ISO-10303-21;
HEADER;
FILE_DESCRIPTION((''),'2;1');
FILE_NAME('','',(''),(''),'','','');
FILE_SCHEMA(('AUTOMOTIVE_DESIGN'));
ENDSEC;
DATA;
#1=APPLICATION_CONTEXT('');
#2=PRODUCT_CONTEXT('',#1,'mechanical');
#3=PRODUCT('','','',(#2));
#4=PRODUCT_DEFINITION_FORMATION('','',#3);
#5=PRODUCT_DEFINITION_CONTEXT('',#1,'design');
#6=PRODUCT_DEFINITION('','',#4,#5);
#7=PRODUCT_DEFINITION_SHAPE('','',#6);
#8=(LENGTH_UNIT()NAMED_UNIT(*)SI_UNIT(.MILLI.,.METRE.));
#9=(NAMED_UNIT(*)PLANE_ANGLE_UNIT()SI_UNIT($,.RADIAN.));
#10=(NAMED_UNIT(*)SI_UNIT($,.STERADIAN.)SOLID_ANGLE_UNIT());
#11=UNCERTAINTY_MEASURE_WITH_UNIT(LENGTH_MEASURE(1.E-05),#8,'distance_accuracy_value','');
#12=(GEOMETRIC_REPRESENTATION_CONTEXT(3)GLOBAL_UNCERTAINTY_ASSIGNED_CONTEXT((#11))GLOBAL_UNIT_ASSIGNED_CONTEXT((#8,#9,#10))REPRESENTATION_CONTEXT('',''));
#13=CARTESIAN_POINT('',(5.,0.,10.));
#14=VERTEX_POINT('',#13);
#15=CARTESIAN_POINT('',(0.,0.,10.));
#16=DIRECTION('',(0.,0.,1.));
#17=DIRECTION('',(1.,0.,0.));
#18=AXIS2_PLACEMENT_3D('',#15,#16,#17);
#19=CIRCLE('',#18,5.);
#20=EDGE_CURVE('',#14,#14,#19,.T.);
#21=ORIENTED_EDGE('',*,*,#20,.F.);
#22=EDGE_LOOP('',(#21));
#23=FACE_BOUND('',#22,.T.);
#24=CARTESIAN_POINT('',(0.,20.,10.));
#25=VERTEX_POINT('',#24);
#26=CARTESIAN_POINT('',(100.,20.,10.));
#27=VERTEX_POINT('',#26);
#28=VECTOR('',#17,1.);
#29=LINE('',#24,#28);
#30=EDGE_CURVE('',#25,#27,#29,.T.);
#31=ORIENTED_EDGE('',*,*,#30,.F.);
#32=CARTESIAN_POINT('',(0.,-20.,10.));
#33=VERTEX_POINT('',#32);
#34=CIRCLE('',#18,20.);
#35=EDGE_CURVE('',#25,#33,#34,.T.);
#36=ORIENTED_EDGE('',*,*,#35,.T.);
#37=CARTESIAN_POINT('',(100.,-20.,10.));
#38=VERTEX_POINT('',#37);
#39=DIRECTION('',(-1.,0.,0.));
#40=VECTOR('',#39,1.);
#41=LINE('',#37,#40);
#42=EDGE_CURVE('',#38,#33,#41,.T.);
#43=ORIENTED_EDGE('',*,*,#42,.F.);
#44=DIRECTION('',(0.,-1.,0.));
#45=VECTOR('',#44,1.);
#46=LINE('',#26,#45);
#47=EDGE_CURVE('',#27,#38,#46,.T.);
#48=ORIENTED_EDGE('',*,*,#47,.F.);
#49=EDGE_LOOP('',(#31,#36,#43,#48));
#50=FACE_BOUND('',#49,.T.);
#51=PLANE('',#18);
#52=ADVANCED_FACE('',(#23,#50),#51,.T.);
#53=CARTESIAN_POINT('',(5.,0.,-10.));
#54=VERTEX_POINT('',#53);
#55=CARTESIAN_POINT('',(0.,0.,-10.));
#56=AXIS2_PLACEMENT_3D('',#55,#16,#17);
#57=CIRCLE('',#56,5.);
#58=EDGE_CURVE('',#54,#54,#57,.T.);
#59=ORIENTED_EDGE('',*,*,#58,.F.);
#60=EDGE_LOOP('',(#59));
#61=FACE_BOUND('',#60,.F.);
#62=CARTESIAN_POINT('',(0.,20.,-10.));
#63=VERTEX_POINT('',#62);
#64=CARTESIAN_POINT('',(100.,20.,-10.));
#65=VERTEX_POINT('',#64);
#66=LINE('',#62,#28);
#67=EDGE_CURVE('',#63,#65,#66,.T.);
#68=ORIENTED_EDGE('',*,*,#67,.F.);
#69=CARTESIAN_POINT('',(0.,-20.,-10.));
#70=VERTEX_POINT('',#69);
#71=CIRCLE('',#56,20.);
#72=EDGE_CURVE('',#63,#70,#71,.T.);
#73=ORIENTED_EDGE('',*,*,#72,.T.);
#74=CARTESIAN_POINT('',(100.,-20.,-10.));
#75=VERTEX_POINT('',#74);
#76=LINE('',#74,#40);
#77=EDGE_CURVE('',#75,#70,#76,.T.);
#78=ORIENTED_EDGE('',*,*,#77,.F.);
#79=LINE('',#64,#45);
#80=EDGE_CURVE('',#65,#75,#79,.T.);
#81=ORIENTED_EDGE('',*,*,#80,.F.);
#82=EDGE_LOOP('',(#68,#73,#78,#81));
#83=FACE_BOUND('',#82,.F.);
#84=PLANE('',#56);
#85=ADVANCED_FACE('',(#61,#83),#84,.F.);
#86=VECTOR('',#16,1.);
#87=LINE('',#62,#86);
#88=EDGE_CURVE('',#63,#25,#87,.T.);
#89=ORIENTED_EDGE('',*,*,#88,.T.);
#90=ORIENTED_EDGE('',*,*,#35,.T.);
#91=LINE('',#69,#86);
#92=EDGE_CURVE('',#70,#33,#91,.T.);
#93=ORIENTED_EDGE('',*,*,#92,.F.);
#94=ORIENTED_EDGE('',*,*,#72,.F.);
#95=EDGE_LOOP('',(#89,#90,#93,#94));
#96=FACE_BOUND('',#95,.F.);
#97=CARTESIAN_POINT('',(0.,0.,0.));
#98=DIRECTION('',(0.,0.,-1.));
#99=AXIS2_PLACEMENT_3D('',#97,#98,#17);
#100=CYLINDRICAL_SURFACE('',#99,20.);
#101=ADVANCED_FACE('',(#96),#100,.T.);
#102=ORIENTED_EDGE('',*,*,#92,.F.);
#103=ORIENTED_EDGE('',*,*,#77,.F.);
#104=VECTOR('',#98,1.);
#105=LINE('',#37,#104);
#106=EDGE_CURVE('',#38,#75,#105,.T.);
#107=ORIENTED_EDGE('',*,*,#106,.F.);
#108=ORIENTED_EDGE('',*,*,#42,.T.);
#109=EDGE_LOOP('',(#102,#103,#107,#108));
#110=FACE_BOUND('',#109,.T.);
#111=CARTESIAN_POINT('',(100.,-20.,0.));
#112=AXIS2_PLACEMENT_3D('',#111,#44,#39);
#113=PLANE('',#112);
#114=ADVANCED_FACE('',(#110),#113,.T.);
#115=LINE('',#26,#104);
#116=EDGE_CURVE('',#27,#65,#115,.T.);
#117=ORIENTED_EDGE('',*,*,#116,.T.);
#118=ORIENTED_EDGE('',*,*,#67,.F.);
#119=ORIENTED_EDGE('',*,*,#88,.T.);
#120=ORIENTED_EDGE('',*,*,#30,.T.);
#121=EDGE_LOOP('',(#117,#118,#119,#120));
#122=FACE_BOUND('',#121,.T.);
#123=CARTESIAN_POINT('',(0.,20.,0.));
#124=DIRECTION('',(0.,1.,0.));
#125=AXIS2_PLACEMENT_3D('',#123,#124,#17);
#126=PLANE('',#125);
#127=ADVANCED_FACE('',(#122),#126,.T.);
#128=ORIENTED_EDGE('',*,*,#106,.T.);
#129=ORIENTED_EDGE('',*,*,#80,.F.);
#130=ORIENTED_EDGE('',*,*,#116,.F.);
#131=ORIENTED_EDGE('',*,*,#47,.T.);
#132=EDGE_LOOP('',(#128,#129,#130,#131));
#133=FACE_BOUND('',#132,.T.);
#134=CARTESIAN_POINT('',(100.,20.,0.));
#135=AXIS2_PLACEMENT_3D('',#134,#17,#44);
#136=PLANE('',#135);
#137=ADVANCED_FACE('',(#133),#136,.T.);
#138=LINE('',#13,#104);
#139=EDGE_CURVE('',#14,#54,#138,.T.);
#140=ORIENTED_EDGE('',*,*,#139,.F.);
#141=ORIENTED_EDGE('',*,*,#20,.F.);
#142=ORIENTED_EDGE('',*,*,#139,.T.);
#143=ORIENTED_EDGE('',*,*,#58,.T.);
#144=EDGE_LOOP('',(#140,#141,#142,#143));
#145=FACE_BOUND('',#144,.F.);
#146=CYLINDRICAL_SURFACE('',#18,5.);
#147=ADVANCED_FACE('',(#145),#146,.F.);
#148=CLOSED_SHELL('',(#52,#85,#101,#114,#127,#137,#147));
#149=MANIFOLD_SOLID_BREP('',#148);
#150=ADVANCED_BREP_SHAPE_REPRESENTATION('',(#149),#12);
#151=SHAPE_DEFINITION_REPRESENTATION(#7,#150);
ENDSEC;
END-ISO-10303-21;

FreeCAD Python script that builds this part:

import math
import FreeCAD as App
import Part
import Sketcher
Q = App.Units.Quantity

doc = App.newDocument("Part")
params = doc.addObject("Spreadsheet::Sheet", "Params")
for row, (alias, value) in enumerate([
    ("sketch1_radius", "20 mm"),
    ("sketch1_width", "100 mm"),
    ("pad1_length", "20 mm"),
    ("sketch2_diameter", "10 mm"),
], start=1):
    params.set(f"A{row}", alias)
    params.set(f"B{row}", "=" + value)
    params.setAlias(f"B{row}", alias)

body = doc.addObject("PartDesign::Body", "Body")

sketch1 = body.newObject("Sketcher::SketchObject", "Sketch")
sketch1.AttachmentSupport = (doc.getObject("XY_Plane"), [""])
sketch1.MapMode = "FlatFace"
sketch1.addGeometry(Part.LineSegment(App.Vector(100, 20, 0), App.Vector(0, 20, 0)), False)
sketch1.addGeometry(Part.ArcOfCircle(Part.Circle(App.Vector(0, 0, 0), App.Vector(0, 0, 1), 20), math.radians(90), math.radians(270)), False)
sketch1.addGeometry(Part.LineSegment(App.Vector(0, -20, 0), App.Vector(100, -20, 0)), False)
sketch1.addGeometry(Part.LineSegment(App.Vector(100, -20, 0), App.Vector(100, 20, 0)), False)
sketch1.addConstraint(Sketcher.Constraint("Tangent", 0, 2, 1, 1))
sketch1.addConstraint(Sketcher.Constraint("Tangent", 1, 2, 2, 1))
sketch1.addConstraint(Sketcher.Constraint("Coincident", 2, 2, 3, 1))
sketch1.addConstraint(Sketcher.Constraint("Coincident", 3, 2, 0, 1))
sketch1.addConstraint(Sketcher.Constraint("Horizontal", 0))
sketch1.addConstraint(Sketcher.Constraint("Horizontal", 2))
sketch1.addConstraint(Sketcher.Constraint("Vertical", 3))
sketch1.addConstraint(Sketcher.Constraint("Coincident", 1, 3, -1, 1))
sketch1.addConstraint(Sketcher.Constraint("Radius", 1, Q("20 mm")))
sketch1.addConstraint(Sketcher.Constraint("DistanceX", 0, 2, 0, 1, Q("100 mm")))
sketch1.setExpression("Constraints[8]", "Params.sketch1_radius")
sketch1.setExpression("Constraints[9]", "Params.sketch1_width")
pad1 = body.newObject("PartDesign::Pad", "Pad")
pad1.Profile = sketch1
pad1.setExpression("Length", "Params.pad1_length")
pad1.Midplane = True

sketch2 = body.newObject("Sketcher::SketchObject", "Sketch001")
sketch2.AttachmentSupport = (doc.getObject("XY_Plane"), [""])
sketch2.MapMode = "FlatFace"
sketch2.AttachmentOffset = App.Placement(App.Vector(0, 0, 10), App.Rotation())
sketch2.addGeometry(Part.Circle(App.Vector(0, 0, 0), App.Vector(0, 0, 1), 5), False)
sketch2.addConstraint(Sketcher.Constraint("Coincident", 0, 3, -1, 1))
sketch2.addConstraint(Sketcher.Constraint("Diameter", 0, Q("10 mm")))
sketch2.setExpression("Constraints[1]", "Params.sketch2_diameter")
pocket1 = body.newObject("PartDesign::Pocket", "Pocket")
pocket1.Profile = sketch2
pocket1.Type = "ThroughAll"

doc.recompute()
